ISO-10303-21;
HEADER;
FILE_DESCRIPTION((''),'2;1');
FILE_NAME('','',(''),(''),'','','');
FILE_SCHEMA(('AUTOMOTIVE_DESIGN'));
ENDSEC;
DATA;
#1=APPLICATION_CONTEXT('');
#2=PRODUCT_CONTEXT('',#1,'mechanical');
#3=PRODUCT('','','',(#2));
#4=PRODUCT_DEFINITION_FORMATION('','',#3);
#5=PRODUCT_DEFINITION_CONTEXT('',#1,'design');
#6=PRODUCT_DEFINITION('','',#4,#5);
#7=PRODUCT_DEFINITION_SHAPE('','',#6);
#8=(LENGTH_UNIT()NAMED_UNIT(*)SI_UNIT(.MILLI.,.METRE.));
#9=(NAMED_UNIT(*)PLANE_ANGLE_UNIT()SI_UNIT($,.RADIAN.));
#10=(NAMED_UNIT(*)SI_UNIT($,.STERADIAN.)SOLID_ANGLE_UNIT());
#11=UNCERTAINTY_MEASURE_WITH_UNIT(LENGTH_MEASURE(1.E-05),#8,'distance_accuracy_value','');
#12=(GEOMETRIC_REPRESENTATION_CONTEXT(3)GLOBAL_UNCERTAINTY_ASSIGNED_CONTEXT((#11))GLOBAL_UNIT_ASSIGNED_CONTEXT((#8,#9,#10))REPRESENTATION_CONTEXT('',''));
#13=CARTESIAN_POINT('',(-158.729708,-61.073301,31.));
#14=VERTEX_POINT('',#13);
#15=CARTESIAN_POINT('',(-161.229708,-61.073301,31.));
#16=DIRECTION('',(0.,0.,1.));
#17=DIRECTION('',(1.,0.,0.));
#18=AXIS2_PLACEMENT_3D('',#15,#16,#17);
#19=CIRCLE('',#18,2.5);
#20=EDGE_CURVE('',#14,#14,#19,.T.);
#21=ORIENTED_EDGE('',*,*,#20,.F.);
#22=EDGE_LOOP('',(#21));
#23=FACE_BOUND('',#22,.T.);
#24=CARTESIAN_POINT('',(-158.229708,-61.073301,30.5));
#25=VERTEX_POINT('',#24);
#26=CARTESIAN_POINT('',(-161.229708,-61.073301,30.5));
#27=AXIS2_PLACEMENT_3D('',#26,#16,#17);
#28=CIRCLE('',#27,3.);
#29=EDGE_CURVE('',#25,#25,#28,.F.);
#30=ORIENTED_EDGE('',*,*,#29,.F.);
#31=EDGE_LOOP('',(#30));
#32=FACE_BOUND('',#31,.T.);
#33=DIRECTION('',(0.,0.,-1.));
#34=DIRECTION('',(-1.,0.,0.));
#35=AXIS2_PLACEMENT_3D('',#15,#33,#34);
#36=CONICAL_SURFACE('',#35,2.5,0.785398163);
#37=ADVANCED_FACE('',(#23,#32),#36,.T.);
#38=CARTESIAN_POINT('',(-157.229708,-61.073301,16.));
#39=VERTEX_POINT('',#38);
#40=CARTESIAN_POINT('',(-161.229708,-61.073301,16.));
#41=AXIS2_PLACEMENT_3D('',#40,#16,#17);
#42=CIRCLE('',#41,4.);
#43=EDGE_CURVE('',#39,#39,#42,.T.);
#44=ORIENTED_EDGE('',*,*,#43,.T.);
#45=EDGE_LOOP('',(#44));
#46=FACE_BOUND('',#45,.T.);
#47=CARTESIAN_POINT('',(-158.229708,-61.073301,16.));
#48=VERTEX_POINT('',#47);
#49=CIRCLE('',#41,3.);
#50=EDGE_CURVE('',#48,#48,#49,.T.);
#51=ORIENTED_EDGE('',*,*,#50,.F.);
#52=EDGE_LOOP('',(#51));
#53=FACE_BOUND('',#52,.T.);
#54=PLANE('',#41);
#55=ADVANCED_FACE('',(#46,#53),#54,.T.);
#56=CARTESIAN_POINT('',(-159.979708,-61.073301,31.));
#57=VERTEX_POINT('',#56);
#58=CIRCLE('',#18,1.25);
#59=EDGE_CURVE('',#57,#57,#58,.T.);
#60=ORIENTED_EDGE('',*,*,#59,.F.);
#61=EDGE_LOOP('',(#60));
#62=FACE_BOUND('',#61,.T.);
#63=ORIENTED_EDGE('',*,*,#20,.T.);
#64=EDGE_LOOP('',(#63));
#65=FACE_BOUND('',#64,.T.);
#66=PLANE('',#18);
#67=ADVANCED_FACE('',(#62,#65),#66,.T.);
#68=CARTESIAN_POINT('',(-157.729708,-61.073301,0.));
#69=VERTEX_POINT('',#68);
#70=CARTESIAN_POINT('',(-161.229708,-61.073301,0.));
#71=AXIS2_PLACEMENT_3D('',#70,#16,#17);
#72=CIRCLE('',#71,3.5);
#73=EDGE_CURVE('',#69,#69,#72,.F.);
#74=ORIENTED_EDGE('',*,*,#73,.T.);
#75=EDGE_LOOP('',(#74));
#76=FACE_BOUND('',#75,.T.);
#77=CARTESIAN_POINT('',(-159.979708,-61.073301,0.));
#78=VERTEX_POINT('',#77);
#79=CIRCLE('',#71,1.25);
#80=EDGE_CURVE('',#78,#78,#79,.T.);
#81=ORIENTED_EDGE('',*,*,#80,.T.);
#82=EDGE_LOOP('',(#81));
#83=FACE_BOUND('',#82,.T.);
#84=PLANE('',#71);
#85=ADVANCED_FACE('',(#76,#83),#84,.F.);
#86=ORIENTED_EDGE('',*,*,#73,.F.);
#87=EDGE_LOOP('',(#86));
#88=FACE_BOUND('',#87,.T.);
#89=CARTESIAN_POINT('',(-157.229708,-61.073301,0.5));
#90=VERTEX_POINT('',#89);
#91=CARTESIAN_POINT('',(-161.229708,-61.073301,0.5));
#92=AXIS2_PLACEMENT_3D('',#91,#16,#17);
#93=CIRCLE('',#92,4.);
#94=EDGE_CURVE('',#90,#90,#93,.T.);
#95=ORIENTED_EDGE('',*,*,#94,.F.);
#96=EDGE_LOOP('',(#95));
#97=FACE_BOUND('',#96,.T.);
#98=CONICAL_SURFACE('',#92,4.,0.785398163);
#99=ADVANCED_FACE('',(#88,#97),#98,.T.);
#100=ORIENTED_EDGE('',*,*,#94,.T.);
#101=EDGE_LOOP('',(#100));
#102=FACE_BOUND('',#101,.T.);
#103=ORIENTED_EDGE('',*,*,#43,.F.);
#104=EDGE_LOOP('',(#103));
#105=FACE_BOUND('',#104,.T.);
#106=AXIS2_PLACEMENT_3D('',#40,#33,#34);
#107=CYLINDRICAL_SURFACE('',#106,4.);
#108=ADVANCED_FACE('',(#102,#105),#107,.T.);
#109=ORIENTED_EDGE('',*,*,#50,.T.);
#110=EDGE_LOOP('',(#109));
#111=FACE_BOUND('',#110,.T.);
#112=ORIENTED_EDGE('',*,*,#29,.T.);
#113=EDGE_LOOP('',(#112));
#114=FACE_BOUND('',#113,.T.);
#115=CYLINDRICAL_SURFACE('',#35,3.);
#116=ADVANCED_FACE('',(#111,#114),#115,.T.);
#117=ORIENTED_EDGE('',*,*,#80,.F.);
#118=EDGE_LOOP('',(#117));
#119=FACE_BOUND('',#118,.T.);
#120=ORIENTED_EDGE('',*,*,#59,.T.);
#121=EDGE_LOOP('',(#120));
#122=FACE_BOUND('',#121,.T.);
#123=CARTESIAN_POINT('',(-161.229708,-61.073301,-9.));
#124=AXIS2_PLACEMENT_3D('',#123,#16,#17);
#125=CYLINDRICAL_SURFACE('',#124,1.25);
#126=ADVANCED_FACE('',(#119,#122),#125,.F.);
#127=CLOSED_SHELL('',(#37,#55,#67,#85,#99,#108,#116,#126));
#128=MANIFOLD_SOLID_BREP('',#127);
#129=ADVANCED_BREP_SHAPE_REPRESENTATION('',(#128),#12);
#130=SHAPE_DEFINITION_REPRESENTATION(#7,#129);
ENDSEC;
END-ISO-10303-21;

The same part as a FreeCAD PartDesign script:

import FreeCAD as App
import Part
import Sketcher

V = App.Vector


def edges_at(feature, points):
    """Names of the edges that pass closest to the given points."""
    edges = feature.Shape.Edges
    near = lambda p: min(range(len(edges)), key=lambda i: edges[i].distToShape(Part.Vertex(*p))[0])
    return sorted({f"Edge{near(p) + 1}" for p in points})

doc = App.newDocument("Part")
params = doc.addObject("Spreadsheet::Sheet", "Params")
for row, (alias, value) in enumerate([
    ("sketch1_diameter", "8 mm"),
    ("pad1_length", "16 mm"),
    ("sketch2_diameter", "6 mm"),
    ("pad2_length", "15 mm"),
    ("sketch3_diameter", "2.5 mm"),
    ("pocket1_length", "40 mm"),
    ("chamfer_size", "0.5 mm"),
], start=1):
    params.set(f"A{row}", alias)
    params.set(f"B{row}", "=" + value)
    params.setAlias(f"B{row}", alias)

body = doc.addObject("PartDesign::Body", "Body")

# Sketch on XY plane
sketch1 = body.newObject("Sketcher::SketchObject", "Sketch")
sketch1.AttachmentSupport = (doc.getObject("XY_Plane"), [""])
sketch1.MapMode = "FlatFace"
sketch1.addGeometry(Part.Circle(V(-161.2, -61.1, 0), V(0, 0, 1), 4), False)
sketch1.addConstraint([
    Sketcher.Constraint("Diameter", 0, 8.0),
    Sketcher.Constraint("DistanceY", 0, 3, -1, 1, 61.073301),
    Sketcher.Constraint("DistanceX", 0, 3, -1, 1, 161.229708),
])
sketch1.setExpression("Constraints[0]", "Params.sketch1_diameter")
pad1 = body.newObject("PartDesign::Pad", "Pad")
pad1.Profile = sketch1
pad1.setExpression("Length", "Params.pad1_length")

# Sketch on XY plane
sketch2 = body.newObject("Sketcher::SketchObject", "Sketch001")
sketch2.AttachmentSupport = (doc.getObject("XY_Plane"), [""])
sketch2.MapMode = "FlatFace"
sketch2.AttachmentOffset = App.Placement(V(0, 0, 16), App.Rotation())
sketch2.addGeometry(Part.Circle(V(-161.2, -61.1, 0), V(0, 0, 1), 3), False)
sketch2.addConstraint([
    Sketcher.Constraint("Diameter", 0, 6.0),
    Sketcher.Constraint("DistanceY", 0, 3, -1, 1, 61.073301),
    Sketcher.Constraint("DistanceX", 0, 3, -1, 1, 161.229708),
])
sketch2.setExpression("Constraints[0]", "Params.sketch2_diameter")
pad2 = body.newObject("PartDesign::Pad", "Pad001")
pad2.Profile = sketch2
pad2.setExpression("Length", "Params.pad2_length")

# Sketch on XY plane
sketch3 = body.newObject("Sketcher::SketchObject", "Sketch002")
sketch3.AttachmentSupport = (doc.getObject("XY_Plane"), [""])
sketch3.MapMode = "FlatFace"
sketch3.AttachmentOffset = App.Placement(V(0, 0, 31), App.Rotation())
sketch3.addGeometry(Part.Circle(V(-161.2, -61.1, 0), V(0, 0, 1), 1.2), False)
sketch3.addConstraint([
    Sketcher.Constraint("Diameter", 0, 2.5),
    Sketcher.Constraint("DistanceY", 0, 3, -1, 1, 61.073301),
    Sketcher.Constraint("DistanceX", 0, 3, -1, 1, 161.229708),
])
sketch3.setExpression("Constraints[0]", "Params.sketch3_diameter")
pocket1 = body.newObject("PartDesign::Pocket", "Pocket")
pocket1.Profile = sketch3
pocket1.setExpression("Length", "Params.pocket1_length")
doc.recompute()

chamfer = body.newObject("PartDesign::Chamfer", "Chamfer")
chamfer.Base = (pocket1, edges_at(pocket1, [(-165.23, -61.073, 0), (-164.23, -61.073, 31)]))
chamfer.setExpression("Size", "Params.chamfer_size")

doc.recompute()
